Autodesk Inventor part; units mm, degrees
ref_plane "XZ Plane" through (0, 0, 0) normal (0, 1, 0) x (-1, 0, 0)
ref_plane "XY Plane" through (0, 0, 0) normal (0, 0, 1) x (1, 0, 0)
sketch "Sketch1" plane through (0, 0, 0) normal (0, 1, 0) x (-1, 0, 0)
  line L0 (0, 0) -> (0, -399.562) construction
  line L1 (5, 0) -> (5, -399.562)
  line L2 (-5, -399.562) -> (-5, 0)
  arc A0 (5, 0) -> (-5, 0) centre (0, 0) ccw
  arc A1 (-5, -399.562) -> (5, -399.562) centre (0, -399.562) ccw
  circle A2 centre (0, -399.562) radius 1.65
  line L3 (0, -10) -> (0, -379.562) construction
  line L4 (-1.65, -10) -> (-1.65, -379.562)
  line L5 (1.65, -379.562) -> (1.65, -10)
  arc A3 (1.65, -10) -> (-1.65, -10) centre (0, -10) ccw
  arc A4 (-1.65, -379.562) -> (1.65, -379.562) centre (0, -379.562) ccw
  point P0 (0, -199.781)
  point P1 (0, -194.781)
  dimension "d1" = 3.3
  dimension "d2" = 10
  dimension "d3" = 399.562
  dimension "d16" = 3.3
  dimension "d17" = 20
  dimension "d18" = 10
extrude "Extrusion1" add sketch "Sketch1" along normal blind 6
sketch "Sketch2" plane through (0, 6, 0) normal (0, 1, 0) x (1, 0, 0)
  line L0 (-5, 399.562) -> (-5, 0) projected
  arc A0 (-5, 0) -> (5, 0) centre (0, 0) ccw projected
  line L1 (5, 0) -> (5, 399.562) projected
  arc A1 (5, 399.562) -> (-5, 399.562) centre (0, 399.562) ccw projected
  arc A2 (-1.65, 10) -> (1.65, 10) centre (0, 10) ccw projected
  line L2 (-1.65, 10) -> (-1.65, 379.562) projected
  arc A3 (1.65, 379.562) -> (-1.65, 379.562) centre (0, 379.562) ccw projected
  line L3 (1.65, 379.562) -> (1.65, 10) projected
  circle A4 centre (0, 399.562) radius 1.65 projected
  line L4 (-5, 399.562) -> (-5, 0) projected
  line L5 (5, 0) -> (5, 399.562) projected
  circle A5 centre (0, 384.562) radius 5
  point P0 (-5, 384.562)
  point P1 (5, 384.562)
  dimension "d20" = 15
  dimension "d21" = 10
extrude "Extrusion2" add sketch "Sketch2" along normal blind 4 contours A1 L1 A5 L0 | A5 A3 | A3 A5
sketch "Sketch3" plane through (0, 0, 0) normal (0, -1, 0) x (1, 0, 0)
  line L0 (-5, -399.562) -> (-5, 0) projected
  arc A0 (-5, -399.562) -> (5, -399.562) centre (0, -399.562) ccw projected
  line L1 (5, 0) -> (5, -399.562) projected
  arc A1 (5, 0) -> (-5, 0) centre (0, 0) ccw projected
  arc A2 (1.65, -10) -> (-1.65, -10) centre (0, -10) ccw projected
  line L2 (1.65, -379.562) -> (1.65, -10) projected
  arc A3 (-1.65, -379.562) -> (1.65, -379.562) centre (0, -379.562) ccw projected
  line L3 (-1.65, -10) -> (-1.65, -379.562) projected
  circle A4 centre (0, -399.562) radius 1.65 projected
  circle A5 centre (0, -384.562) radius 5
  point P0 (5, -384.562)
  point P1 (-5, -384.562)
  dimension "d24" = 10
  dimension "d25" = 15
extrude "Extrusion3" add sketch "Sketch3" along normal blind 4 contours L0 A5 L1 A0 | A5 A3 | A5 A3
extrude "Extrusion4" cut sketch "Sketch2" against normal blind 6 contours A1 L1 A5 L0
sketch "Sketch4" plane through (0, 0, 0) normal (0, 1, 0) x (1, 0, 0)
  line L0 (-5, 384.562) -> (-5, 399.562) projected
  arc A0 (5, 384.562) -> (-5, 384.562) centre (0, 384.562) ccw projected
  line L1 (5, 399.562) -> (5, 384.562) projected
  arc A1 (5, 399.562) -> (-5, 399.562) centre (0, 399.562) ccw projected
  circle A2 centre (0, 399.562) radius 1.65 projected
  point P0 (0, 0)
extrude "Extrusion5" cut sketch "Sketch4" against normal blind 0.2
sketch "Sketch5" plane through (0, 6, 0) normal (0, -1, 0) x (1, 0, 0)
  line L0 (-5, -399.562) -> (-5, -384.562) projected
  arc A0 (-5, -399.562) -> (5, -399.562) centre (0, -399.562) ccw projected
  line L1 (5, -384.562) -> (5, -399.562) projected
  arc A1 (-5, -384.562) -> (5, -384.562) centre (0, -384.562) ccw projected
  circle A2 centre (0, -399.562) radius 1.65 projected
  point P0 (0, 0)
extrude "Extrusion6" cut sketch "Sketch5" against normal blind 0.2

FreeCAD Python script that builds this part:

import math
import FreeCAD as App
import Part
import Sketcher
from FreeCAD import Vector

doc = App.newDocument("Part")
body = doc.addObject("PartDesign::Body", "Body")

sketch1 = body.newObject("Sketcher::SketchObject", "Sketch")
sketch1.AttachmentSupport = (doc.getObject("XZ_Plane"), [""])
sketch1.MapMode = "FlatFace"
sketch1.addGeometry([
    Part.LineSegment(Vector(-5, -399.562, 0), Vector(-5, 0, 0)),
    Part.ArcOfCircle(Part.Circle(Vector(0, 0, 0), Vector(0, 0, 1), 5), math.radians(0), math.radians(180)),
    Part.LineSegment(Vector(5, 0, 0), Vector(5, -399.562, 0)),
    Part.ArcOfCircle(Part.Circle(Vector(0, -399.562, 0), Vector(0, 0, 1), 5), math.radians(180), math.radians(360)),
    Part.Circle(Vector(0, -399.562, 0), Vector(0, 0, 1), 1.65),
    Part.LineSegment(Vector(1.65, -379.562, 0), Vector(1.65, -10, 0)),
    Part.ArcOfCircle(Part.Circle(Vector(0, -10, 0), Vector(0, 0, 1), 1.65), math.radians(0), math.radians(180)),
    Part.LineSegment(Vector(-1.65, -10, 0), Vector(-1.65, -379.562, 0)),
    Part.ArcOfCircle(Part.Circle(Vector(0, -379.562, 0), Vector(0, 0, 1), 1.65), math.radians(180), math.radians(360)),
], False)
sketch1.addConstraint([
    Sketcher.Constraint("Tangent", 0, 2, 1, 2),
    Sketcher.Constraint("Tangent", 1, 1, 2, 1),
    Sketcher.Constraint("Tangent", 2, 2, 3, 2),
    Sketcher.Constraint("Tangent", 3, 1, 0, 1),
    Sketcher.Constraint("Tangent", 5, 2, 6, 1),
    Sketcher.Constraint("Tangent", 6, 2, 7, 1),
    Sketcher.Constraint("Tangent", 7, 2, 8, 1),
    Sketcher.Constraint("Tangent", 8, 2, 5, 1),
    Sketcher.Constraint("Vertical", 0),
    Sketcher.Constraint("Vertical", 2),
    Sketcher.Constraint("Vertical", 5),
    Sketcher.Constraint("Vertical", 7),
    Sketcher.Constraint("Coincident", 1, 3, -1, 1),
    Sketcher.Constraint("Coincident", 4, 3, 3, 3),
    Sketcher.Constraint("Equal", 4, 6),
    Sketcher.Constraint("PointOnObject", 6, 3, -2),
    Sketcher.Constraint("Radius", 1, 5.0),
    Sketcher.Constraint("Diameter", 4, 3.3),
    Sketcher.Constraint("DistanceY", 6, 3, -1, 1, 10.0),
    Sketcher.Constraint("DistanceY", 3, 3, 8, 3, 20.0),
    Sketcher.Constraint("DistanceY", 0, 1, 0, 2, 399.562),
])
pad1 = body.newObject("PartDesign::Pad", "Pad")
pad1.Profile = sketch1
pad1.Length = 6
pad1.Reversed = True

sketch2 = body.newObject("Sketcher::SketchObject", "Sketch001")
sketch2.AttachmentSupport = (doc.getObject("XZ_Plane"), [""])
sketch2.MapMode = "FlatFace"
sketch2.AttachmentOffset = App.Placement(Vector(0, 0, -6), App.Rotation())
sketch2.addGeometry([
    Part.ArcOfCircle(Part.Circle(Vector(0, -399.562, 0), Vector(0, 0, 1), 5), math.radians(180), math.radians(360)),
    Part.LineSegment(Vector(-5, -399.562, 0), Vector(-5, -384.562, 0)),
    Part.ArcOfCircle(Part.Circle(Vector(0, -384.562, 0), Vector(0, 0, 1), 5), math.radians(0), math.radians(180)),
    Part.LineSegment(Vector(5, -384.562, 0), Vector(5, -399.562, 0)),
    Part.Circle(Vector(0, -399.562, 0), Vector(0, 0, 1), 1.65),
], False)
sketch2.addConstraint([
    Sketcher.Constraint("Tangent", 0, 1, 1, 1),
    Sketcher.Constraint("Tangent", 1, 2, 2, 2),
    Sketcher.Constraint("Tangent", 2, 1, 3, 1),
    Sketcher.Constraint("Tangent", 3, 2, 0, 2),
    Sketcher.Constraint("Vertical", 1),
    Sketcher.Constraint("Vertical", 3),
    Sketcher.Constraint("Coincident", 4, 3, 0, 3),
    Sketcher.Constraint("PointOnObject", 0, 3, -2),
    Sketcher.Constraint("Radius", 0, 5.0),
    Sketcher.Constraint("DistanceY", 1, 1, 1, 2, 15.0),
    Sketcher.Constraint("Diameter", 4, 3.3),
    Sketcher.Constraint("DistanceY", 0, 3, -1, 1, 399.562),
])
pad2 = body.newObject("PartDesign::Pad", "Pad001")
pad2.Profile = sketch2
pad2.Length = 4
pad2.Reversed = True

sketch3 = body.newObject("Sketcher::SketchObject", "Sketch002")
sketch3.AttachmentSupport = (doc.getObject("XZ_Plane"), [""])
sketch3.MapMode = "FlatFace"
sketch3.addGeometry([
    Part.LineSegment(Vector(-5, -384.562, 0), Vector(-5, -399.562, 0)),
    Part.ArcOfCircle(Part.Circle(Vector(0, -399.562, 0), Vector(0, 0, 1), 5), math.radians(180), math.radians(360)),
    Part.LineSegment(Vector(5, -399.562, 0), Vector(5, -384.562, 0)),
    Part.ArcOfCircle(Part.Circle(Vector(0, -384.562, 0), Vector(0, 0, 1), 5), math.radians(0), math.radians(180)),
    Part.Circle(Vector(0, -399.562, 0), Vector(0, 0, 1), 1.65),
], False)
sketch3.addConstraint([
    Sketcher.Constraint("Tangent", 0, 2, 1, 1),
    Sketcher.Constraint("Tangent", 1, 2, 2, 1),
    Sketcher.Constraint("Tangent", 2, 2, 3, 1),
    Sketcher.Constraint("Tangent", 3, 2, 0, 1),
    Sketcher.Constraint("Vertical", 0),
    Sketcher.Constraint("Vertical", 2),
    Sketcher.Constraint("Coincident", 4, 3, 1, 3),
    Sketcher.Constraint("PointOnObject", 1, 3, -2),
    Sketcher.Constraint("Radius", 1, 5.0),
    Sketcher.Constraint("DistanceY", 0, 2, 0, 1, 15.0),
    Sketcher.Constraint("Diameter", 4, 3.3),
    Sketcher.Constraint("DistanceY", 1, 3, -1, 1, 399.562),
])
pad3 = body.newObject("PartDesign::Pad", "Pad002")
pad3.Profile = sketch3
pad3.Length = 4

sketch4 = body.newObject("Sketcher::SketchObject", "Sketch003")
sketch4.AttachmentSupport = (doc.getObject("XZ_Plane"), [""])
sketch4.MapMode = "FlatFace"
sketch4.AttachmentOffset = App.Placement(Vector(0, 0, -6), App.Rotation())
sketch4.addGeometry([
    Part.ArcOfCircle(Part.Circle(Vector(0, -399.562, 0), Vector(0, 0, 1), 5), math.radians(180), math.radians(360)),
    Part.LineSegment(Vector(-5, -399.562, 0), Vector(-5, -384.562, 0)),
    Part.ArcOfCircle(Part.Circle(Vector(0, -384.562, 0), Vector(0, 0, 1), 5), math.radians(180), math.radians(360)),
    Part.LineSegment(Vector(5, -384.562, 0), Vector(5, -399.562, 0)),
    Part.Circle(Vector(0, -399.562, 0), Vector(0, 0, 1), 1.65),
], False)
sketch4.addConstraint([
    Sketcher.Constraint("Tangent", 0, 1, 1, 1),
    Sketcher.Constraint("Tangent", 1, 2, 2, 1),
    Sketcher.Constraint("Tangent", 2, 2, 3, 1),
    Sketcher.Constraint("Tangent", 3, 2, 0, 2),
    Sketcher.Constraint("Vertical", 1),
    Sketcher.Constraint("Vertical", 3),
    Sketcher.Constraint("Coincident", 4, 3, 0, 3),
    Sketcher.Constraint("PointOnObject", 0, 3, -2),
    Sketcher.Constraint("Radius", 0, 5.0),
    Sketcher.Constraint("DistanceY", 1, 1, 1, 2, 15.0),
    Sketcher.Constraint("Diameter", 4, 3.3),
    Sketcher.Constraint("DistanceY", 0, 3, -1, 1, 399.562),
])
pocket1 = body.newObject("PartDesign::Pocket", "Pocket")
pocket1.Profile = sketch4
pocket1.Length = 6
pocket1.Reversed = True

sketch5 = body.newObject("Sketcher::SketchObject", "Sketch004")
sketch5.AttachmentSupport = (doc.getObject("XZ_Plane"), [""])
sketch5.MapMode = "FlatFace"
sketch5.addGeometry([
    Part.LineSegment(Vector(-5, -399.562, 0), Vector(-5, -384.562, 0)),
    Part.ArcOfCircle(Part.Circle(Vector(0, -384.562, 0), Vector(0, 0, 1), 5), math.radians(180), math.radians(360)),
    Part.LineSegment(Vector(5, -384.562, 0), Vector(5, -399.562, 0)),
    Part.ArcOfCircle(Part.Circle(Vector(0, -399.562, 0), Vector(0, 0, 1), 5), math.radians(180), math.radians(360)),
    Part.Circle(Vector(0, -399.562, 0), Vector(0, 0, 1), 1.65),
], False)
sketch5.addConstraint([
    Sketcher.Constraint("Tangent", 0, 2, 1, 1),
    Sketcher.Constraint("Tangent", 1, 2, 2, 1),
    Sketcher.Constraint("Tangent", 2, 2, 3, 2),
    Sketcher.Constraint("Tangent", 3, 1, 0, 1),
    Sketcher.Constraint("Vertical", 0),
    Sketcher.Constraint("Vertical", 2),
    Sketcher.Constraint("Coincident", 4, 3, 3, 3),
    Sketcher.Constraint("PointOnObject", 1, 3, -2),
    Sketcher.Constraint("Radius", 1, 5.0),
    Sketcher.Constraint("Diameter", 4, 3.3),
    Sketcher.Constraint("DistanceY", 0, 1, 0, 2, 15.0),
    Sketcher.Constraint("DistanceY", 1, 3, -1, 1, 384.562),
])
pocket2 = body.newObject("PartDesign::Pocket", "Pocket001")
pocket2.Profile = sketch5
pocket2.Length = 0.2
pocket2.Reversed = True

sketch6 = body.newObject("Sketcher::SketchObject", "Sketch005")
sketch6.AttachmentSupport = (doc.getObject("XZ_Plane"), [""])
sketch6.MapMode = "FlatFace"
sketch6.AttachmentOffset = App.Placement(Vector(0, 0, -6), App.Rotation())
sketch6.addGeometry([
    Part.LineSegment(Vector(-5, -384.562, 0), Vector(-5, -399.562, 0)),
    Part.ArcOfCircle(Part.Circle(Vector(0, -399.562, 0), Vector(0, 0, 1), 5), math.radians(180), math.radians(360)),
    Part.LineSegment(Vector(5, -399.562, 0), Vector(5, -384.562, 0)),
    Part.ArcOfCircle(Part.Circle(Vector(0, -384.562, 0), Vector(0, 0, 1), 5), math.radians(180), math.radians(360)),
    Part.Circle(Vector(0, -399.562, 0), Vector(0, 0, 1), 1.65),
], False)
sketch6.addConstraint([
    Sketcher.Constraint("Tangent", 0, 2, 1, 1),
    Sketcher.Constraint("Tangent", 1, 2, 2, 1),
    Sketcher.Constraint("Tangent", 2, 2, 3, 2),
    Sketcher.Constraint("Tangent", 3, 1, 0, 1),
    Sketcher.Constraint("Vertical", 0),
    Sketcher.Constraint("Vertical", 2),
    Sketcher.Constraint("Coincident", 4, 3, 1, 3),
    Sketcher.Constraint("PointOnObject", 1, 3, -2),
    Sketcher.Constraint("Radius", 1, 5.0),
    Sketcher.Constraint("Diameter", 4, 3.3),
    Sketcher.Constraint("DistanceY", 0, 2, 0, 1, 15.0),
    Sketcher.Constraint("DistanceY", 1, 3, -1, 1, 399.562),
])
pocket3 = body.newObject("PartDesign::Pocket", "Pocket002")
pocket3.Profile = sketch6
pocket3.Length = 0.2

doc.recompute()
